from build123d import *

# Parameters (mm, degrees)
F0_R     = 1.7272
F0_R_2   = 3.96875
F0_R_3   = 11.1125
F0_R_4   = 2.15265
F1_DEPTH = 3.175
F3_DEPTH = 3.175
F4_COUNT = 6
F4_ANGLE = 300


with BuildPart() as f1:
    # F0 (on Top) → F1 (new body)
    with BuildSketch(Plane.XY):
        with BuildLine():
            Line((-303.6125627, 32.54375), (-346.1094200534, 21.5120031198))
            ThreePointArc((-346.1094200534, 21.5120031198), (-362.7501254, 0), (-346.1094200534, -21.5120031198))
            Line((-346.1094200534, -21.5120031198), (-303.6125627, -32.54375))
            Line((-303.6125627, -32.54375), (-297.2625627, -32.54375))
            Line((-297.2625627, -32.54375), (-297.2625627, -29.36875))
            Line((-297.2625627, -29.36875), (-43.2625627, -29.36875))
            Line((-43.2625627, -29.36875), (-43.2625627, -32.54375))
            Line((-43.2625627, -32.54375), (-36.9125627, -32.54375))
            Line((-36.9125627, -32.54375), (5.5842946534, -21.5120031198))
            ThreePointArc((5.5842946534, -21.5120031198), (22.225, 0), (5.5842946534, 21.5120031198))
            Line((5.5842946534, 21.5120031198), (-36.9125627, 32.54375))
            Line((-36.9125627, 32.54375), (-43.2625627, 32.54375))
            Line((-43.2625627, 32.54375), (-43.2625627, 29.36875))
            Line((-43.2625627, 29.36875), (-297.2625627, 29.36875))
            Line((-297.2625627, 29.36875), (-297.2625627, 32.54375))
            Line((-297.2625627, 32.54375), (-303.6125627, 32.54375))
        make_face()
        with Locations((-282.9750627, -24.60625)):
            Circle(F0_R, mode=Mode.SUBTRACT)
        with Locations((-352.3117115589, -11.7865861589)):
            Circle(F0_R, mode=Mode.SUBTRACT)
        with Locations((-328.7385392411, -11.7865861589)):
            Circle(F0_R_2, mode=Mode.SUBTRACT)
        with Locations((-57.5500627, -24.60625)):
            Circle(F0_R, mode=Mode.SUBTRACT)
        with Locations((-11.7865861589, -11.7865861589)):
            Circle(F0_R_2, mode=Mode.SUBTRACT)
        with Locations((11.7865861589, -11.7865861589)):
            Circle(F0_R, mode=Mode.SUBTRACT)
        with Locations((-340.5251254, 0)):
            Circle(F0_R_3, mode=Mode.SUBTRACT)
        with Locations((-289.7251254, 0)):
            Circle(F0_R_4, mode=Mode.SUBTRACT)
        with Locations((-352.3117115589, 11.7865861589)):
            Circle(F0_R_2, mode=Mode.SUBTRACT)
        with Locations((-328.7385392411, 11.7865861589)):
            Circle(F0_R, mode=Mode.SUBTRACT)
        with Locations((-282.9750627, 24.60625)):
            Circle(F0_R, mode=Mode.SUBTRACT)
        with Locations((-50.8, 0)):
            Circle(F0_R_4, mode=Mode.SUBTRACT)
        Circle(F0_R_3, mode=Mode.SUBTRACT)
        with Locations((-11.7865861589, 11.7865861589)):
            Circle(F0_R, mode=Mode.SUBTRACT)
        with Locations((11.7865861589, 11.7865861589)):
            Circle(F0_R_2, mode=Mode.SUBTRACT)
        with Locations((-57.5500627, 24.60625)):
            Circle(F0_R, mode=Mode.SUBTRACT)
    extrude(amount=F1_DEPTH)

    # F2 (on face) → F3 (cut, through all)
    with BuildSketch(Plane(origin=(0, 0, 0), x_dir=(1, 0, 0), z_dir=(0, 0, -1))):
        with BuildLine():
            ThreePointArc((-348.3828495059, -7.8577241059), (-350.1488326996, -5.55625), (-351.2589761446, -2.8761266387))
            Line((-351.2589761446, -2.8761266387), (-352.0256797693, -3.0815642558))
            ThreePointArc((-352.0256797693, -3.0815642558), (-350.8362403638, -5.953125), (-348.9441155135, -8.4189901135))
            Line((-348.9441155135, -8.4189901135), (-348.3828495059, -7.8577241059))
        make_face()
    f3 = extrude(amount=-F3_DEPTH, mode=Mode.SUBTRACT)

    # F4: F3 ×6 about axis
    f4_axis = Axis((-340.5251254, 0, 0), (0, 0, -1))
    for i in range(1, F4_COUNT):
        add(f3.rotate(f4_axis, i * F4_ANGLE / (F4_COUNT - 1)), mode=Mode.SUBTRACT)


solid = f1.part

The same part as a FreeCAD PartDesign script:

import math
import FreeCAD as App
import Part
import Sketcher

V = App.Vector
Q = App.Units.Quantity

doc = App.newDocument("Part")
body = doc.addObject("PartDesign::Body", "Body")

# Sketch on XY plane
sketch1 = body.newObject("Sketcher::SketchObject", "Sketch")
sketch1.AttachmentSupport = (doc.getObject("XY_Plane"), [""])
sketch1.MapMode = "FlatFace"
sketch1.addGeometry(Part.LineSegment(V(-303.612563, 32.54375, 0), V(-346.10942, 21.512003, 0)), False)
sketch1.addGeometry(Part.ArcOfCircle(Part.Circle(V(-340.525125, 0, 0), V(0, 0, 1), 22.225), math.radians(104.552195), math.radians(255.447805)), False)
sketch1.addGeometry(Part.LineSegment(V(-346.10942, -21.512003, 0), V(-303.612563, -32.54375, 0)), False)
sketch1.addGeometry(Part.LineSegment(V(-303.612563, -32.54375, 0), V(-297.262563, -32.54375, 0)), False)
sketch1.addGeometry(Part.LineSegment(V(-297.262563, -32.54375, 0), V(-297.262563, -29.36875, 0)), False)
sketch1.addGeometry(Part.LineSegment(V(-297.262563, -29.36875, 0), V(-43.262563, -29.36875, 0)), False)
sketch1.addGeometry(Part.LineSegment(V(-43.262563, -29.36875, 0), V(-43.262563, -32.54375, 0)), False)
sketch1.addGeometry(Part.LineSegment(V(-43.262563, -32.54375, 0), V(-36.912563, -32.54375, 0)), False)
sketch1.addGeometry(Part.LineSegment(V(-36.912563, -32.54375, 0), V(5.584295, -21.512003, 0)), False)
sketch1.addGeometry(Part.ArcOfCircle(Part.Circle(V(0, 0, 0), V(0, 0, 1), 22.225), math.radians(-75.447805), math.radians(75.447805)), False)
sketch1.addGeometry(Part.LineSegment(V(5.584295, 21.512003, 0), V(-36.912563, 32.54375, 0)), False)
sketch1.addGeometry(Part.LineSegment(V(-36.912563, 32.54375, 0), V(-43.262563, 32.54375, 0)), False)
sketch1.addGeometry(Part.LineSegment(V(-43.262563, 32.54375, 0), V(-43.262563, 29.36875, 0)), False)
sketch1.addGeometry(Part.LineSegment(V(-43.262563, 29.36875, 0), V(-297.262563, 29.36875, 0)), False)
sketch1.addGeometry(Part.LineSegment(V(-297.262563, 29.36875, 0), V(-297.262563, 32.54375, 0)), False)
sketch1.addGeometry(Part.LineSegment(V(-297.262563, 32.54375, 0), V(-303.612563, 32.54375, 0)), False)
sketch1.addGeometry(Part.Circle(V(-282.975063, -24.60625, 0), V(0, 0, 1), 1.7272), False)
sketch1.addGeometry(Part.Circle(V(-352.311712, -11.786586, 0), V(0, 0, 1), 1.7272), False)
sketch1.addGeometry(Part.Circle(V(-328.738539, -11.786586, 0), V(0, 0, 1), 3.96875), False)
sketch1.addGeometry(Part.Circle(V(-57.550063, -24.60625, 0), V(0, 0, 1), 1.7272), False)
sketch1.addGeometry(Part.Circle(V(-11.786586, -11.786586, 0), V(0, 0, 1), 3.96875), False)
sketch1.addGeometry(Part.Circle(V(11.786586, -11.786586, 0), V(0, 0, 1), 1.7272), False)
sketch1.addGeometry(Part.Circle(V(-340.525125, 0, 0), V(0, 0, 1), 11.1125), False)
sketch1.addGeometry(Part.Circle(V(-289.725125, 0, 0), V(0, 0, 1), 2.15265), False)
sketch1.addGeometry(Part.Circle(V(-352.311712, 11.786586, 0), V(0, 0, 1), 3.96875), False)
sketch1.addGeometry(Part.Circle(V(-328.738539, 11.786586, 0), V(0, 0, 1), 1.7272), False)
sketch1.addGeometry(Part.Circle(V(-282.975063, 24.60625, 0), V(0, 0, 1), 1.7272), False)
sketch1.addGeometry(Part.Circle(V(-50.8, 0, 0), V(0, 0, 1), 2.15265), False)
sketch1.addGeometry(Part.Circle(V(0, 0, 0), V(0, 0, 1), 11.1125), False)
sketch1.addGeometry(Part.Circle(V(-11.786586, 11.786586, 0), V(0, 0, 1), 1.7272), False)
sketch1.addGeometry(Part.Circle(V(11.786586, 11.786586, 0), V(0, 0, 1), 3.96875), False)
sketch1.addGeometry(Part.Circle(V(-57.550063, 24.60625, 0), V(0, 0, 1), 1.7272), False)
sketch1.addConstraint(Sketcher.Constraint("Tangent", 0, 2, 1, 1))
sketch1.addConstraint(Sketcher.Constraint("Tangent", 1, 2, 2, 1))
sketch1.addConstraint(Sketcher.Constraint("Coincident", 2, 2, 3, 1))
sketch1.addConstraint(Sketcher.Constraint("Coincident", 3, 2, 4, 1))
sketch1.addConstraint(Sketcher.Constraint("Coincident", 4, 2, 5, 1))
sketch1.addConstraint(Sketcher.Constraint("Coincident", 5, 2, 6, 1))
sketch1.addConstraint(Sketcher.Constraint("Coincident", 6, 2, 7, 1))
sketch1.addConstraint(Sketcher.Constraint("Coincident", 7, 2, 8, 1))
sketch1.addConstraint(Sketcher.Constraint("Tangent", 8, 2, 9, 1))
sketch1.addConstraint(Sketcher.Constraint("Tangent", 9, 2, 10, 1))
sketch1.addConstraint(Sketcher.Constraint("Coincident", 10, 2, 11, 1))
sketch1.addConstraint(Sketcher.Constraint("Coincident", 11, 2, 12, 1))
sketch1.addConstraint(Sketcher.Constraint("Coincident", 12, 2, 13, 1))
sketch1.addConstraint(Sketcher.Constraint("Coincident", 13, 2, 14, 1))
sketch1.addConstraint(Sketcher.Constraint("Coincident", 14, 2, 15, 1))
sketch1.addConstraint(Sketcher.Constraint("Coincident", 15, 2, 0, 1))
sketch1.addConstraint(Sketcher.Constraint("Horizontal", 3))
sketch1.addConstraint(Sketcher.Constraint("Vertical", 4))
sketch1.addConstraint(Sketcher.Constraint("Horizontal", 5))
sketch1.addConstraint(Sketcher.Constraint("Vertical", 6))
sketch1.addConstraint(Sketcher.Constraint("Horizontal", 7))
sketch1.addConstraint(Sketcher.Constraint("Horizontal", 11))
sketch1.addConstraint(Sketcher.Constraint("Vertical", 12))
sketch1.addConstraint(Sketcher.Constraint("Horizontal", 13))
sketch1.addConstraint(Sketcher.Constraint("Vertical", 14))
sketch1.addConstraint(Sketcher.Constraint("Horizontal", 15))
sketch1.addConstraint(Sketcher.Constraint("Coincident", 9, 3, -1, 1))
sketch1.addConstraint(Sketcher.Constraint("Coincident", 28, 3, -1, 1))
sketch1.addConstraint(Sketcher.Constraint("Coincident", 22, 3, 1, 3))
sketch1.addConstraint(Sketcher.Constraint("Equal", 1, 9))
sketch1.addConstraint(Sketcher.Constraint("Equal", 16, 17))
sketch1.addConstraint(Sketcher.Constraint("Equal", 17, 19))
sketch1.addConstraint(Sketcher.Constraint("Equal", 18, 20))
sketch1.addConstraint(Sketcher.Constraint("Equal", 19, 21))
sketch1.addConstraint(Sketcher.Constraint("Equal", 20, 24))
sketch1.addConstraint(Sketcher.Constraint("Equal", 21, 25))
sketch1.addConstraint(Sketcher.Constraint("Equal", 25, 26))
sketch1.addConstraint(Sketcher.Constraint("Equal", 23, 27))
sketch1.addConstraint(Sketcher.Constraint("Equal", 22, 28))
sketch1.addConstraint(Sketcher.Constraint("Equal", 26, 29))
sketch1.addConstraint(Sketcher.Constraint("Equal", 24, 30))
sketch1.addConstraint(Sketcher.Constraint("Equal", 29, 31))
sketch1.addConstraint(Sketcher.Constraint("Symmetric", 21, 3, 29, 3, -1, 1))
sketch1.addConstraint(Sketcher.Constraint("Symmetric", 20, 3, 30, 3, -1, 1))
sketch1.addConstraint(Sketcher.Constraint("Symmetric", 20, 3, 21, 3, -2))
sketch1.addConstraint(Sketcher.Constraint("Symmetric", 17, 3, 24, 3, -1))
sketch1.addConstraint(Sketcher.Constraint("Symmetric", 18, 3, 25, 3, -1))
sketch1.addConstraint(Sketcher.Constraint("Symmetric", 16, 3, 26, 3, -1))
sketch1.addConstraint(Sketcher.Constraint("Symmetric", 19, 3, 31, 3, -1))
sketch1.addConstraint(Sketcher.Constraint("Symmetric", 0, 2, 1, 2, -1))
sketch1.addConstraint(Sketcher.Constraint("Symmetric", 7, 2, 10, 2, -1))
sketch1.addConstraint(Sketcher.Constraint("Symmetric", 5, 2, 12, 2, -1))
sketch1.addConstraint(Sketcher.Constraint("Symmetric", 3, 2, 14, 2, -1))
sketch1.addConstraint(Sketcher.Constraint("PointOnObject", 23, 3, -1))
sketch1.addConstraint(Sketcher.Constraint("PointOnObject", 27, 3, -1))
sketch1.addConstraint(Sketcher.Constraint("Parallel", 0, 8))
sketch1.addConstraint(Sketcher.Constraint("Horizontal", 17, 3, 18, 3))
sketch1.addConstraint(Sketcher.Constraint("Horizontal", 16, 3, 19, 3))
sketch1.addConstraint(Sketcher.Constraint("Horizontal", 18, 3, 20, 3))
sketch1.addConstraint(Sketcher.Constraint("Horizontal", 3, 2, 6, 2))
sketch1.addConstraint(Sketcher.Constraint("Equal", 3, 7))
sketch1.addConstraint(Sketcher.Constraint("DistanceX", 5, 1, 5, 2, Q("10 in")))
sketch1.addConstraint(Sketcher.Constraint("Diameter", 16, Q("0.136 in")))
sketch1.addConstraint(Sketcher.Constraint("Diameter", 18, Q("0.3125 in")))
sketch1.addConstraint(Sketcher.Constraint("Diameter", 22, Q("0.875 in")))
sketch1.addConstraint(Sketcher.Constraint("DistanceX", 27, 3, -1, 1, Q("2 in")))
sketch1.addConstraint(Sketcher.Constraint("Radius", 1, Q("0.875 in")))
sketch1.addConstraint(Sketcher.Constraint("DistanceX", 1, 3, 23, 3, Q("2 in")))
sketch1.addConstraint(Sketcher.Constraint("Diameter", 23, Q("0.1695 in")))
sketch1.addConstraint(Sketcher.Constraint("DistanceX", 3, 1, 3, 2, Q("0.25 in")))
sketch1.addConstraint(Sketcher.Constraint("DistanceY", 4, 1, 4, 2, Q("0.125 in")))
sketch1.addConstraint(Sketcher.Constraint("DistanceY", 16, 3, -1, 1, Q("0.96875 in")))
sketch1.addConstraint(Sketcher.Constraint("DistanceY", 2, 2, -1, 1, Q("1.28125 in")))
sketch1.addConstraint(Sketcher.Constraint("DistanceX", 16, 3, 19, 3, Q("8.875 in")))
sketch1.addConstraint(Sketcher.Constraint("DistanceX", 2, 2, 16, 3, Q("0.8125 in")))
sketch1.addConstraint(Sketcher.Constraint("Distance", 0, 43.905379))
sketch1.addConstraint(Sketcher.Constraint("DistanceX", 17, 3, -1, 1, 352.311712))
sketch1.addConstraint(Sketcher.Constraint("DistanceX", 18, 3, -1, 1, 328.738539))
sketch1.addConstraint(Sketcher.Constraint("DistanceX", 1, 3, 20, 3, 328.738539))
sketch1.addConstraint(Sketcher.Constraint("DistanceY", 17, 3, 0, 2, 33.298589))
pad1 = body.newObject("PartDesign::Pad", "Pad")
pad1.Profile = sketch1
pad1.Length = Q("0.125 in")

# Sketch on XY plane
sketch2 = body.newObject("Sketcher::SketchObject", "Sketch001")
sketch2.AttachmentSupport = (doc.getObject("XY_Plane"), [""])
sketch2.MapMode = "FlatFace"
sketch2.addGeometry(Part.ArcOfCircle(Part.Circle(V(-340.525125, 0, 0), V(0, 0, 1), 11.1125), math.radians(135), math.radians(165)), False)
sketch2.addGeometry(Part.LineSegment(V(-351.258976, 2.876127, 0), V(-352.02568, 3.081564, 0)), False)
sketch2.addGeometry(Part.ArcOfCircle(Part.Circle(V(-340.525125, 0, 0), V(0, 0, 1), 11.90625), math.radians(135), math.radians(165)), False)
sketch2.addGeometry(Part.LineSegment(V(-348.944116, 8.41899, 0), V(-348.38285, 7.857724, 0)), False)
sketch2.addConstraint(Sketcher.Constraint("Coincident", 0, 2, 1, 1))
sketch2.addConstraint(Sketcher.Constraint("Coincident", 1, 2, 2, 2))
sketch2.addConstraint(Sketcher.Constraint("Coincident", 2, 1, 3, 1))
sketch2.addConstraint(Sketcher.Constraint("Coincident", 3, 2, 0, 1))
sketch2.addConstraint(Sketcher.Constraint("Coincident", 2, 3, 0, 3))
sketch2.addConstraint(Sketcher.Constraint("PointOnObject", 0, 3, -1))
sketch2.addConstraint(Sketcher.Constraint("Angle", 1, Q("165 deg")))
sketch2.addConstraint(Sketcher.Constraint("Angle", 3, Q("-45 deg")))
sketch2.addConstraint(Sketcher.Constraint("Radius", 0, Q("0.4375 in")))
sketch2.addConstraint(Sketcher.Constraint("Radius", 2, Q("0.46875 in")))
sketch2.addConstraint(Sketcher.Constraint("DistanceX", 1, 2, -1, 1, 352.02568))
sketch2.addConstraint(Sketcher.Constraint("DistanceY", -1, 1, 2, 1, 8.41899))
sketch2.addConstraint(Sketcher.Constraint("DistanceX", 3, 2, -1, 1, 348.38285))
pocket1 = body.newObject("PartDesign::Pocket", "Pocket")
pocket1.Profile = sketch2
pocket1.Type = "ThroughAll"
pocket1.Reversed = True
doc.recompute()

datumline = body.newObject("PartDesign::Line", "DatumLine")
datumline.Placement = App.Placement(V(-340.525125, 0, 0), App.Rotation(V(0, 0, 1), V(0, 0, -1)))
polarpattern = body.newObject("PartDesign::PolarPattern", "PolarPattern")
polarpattern.Originals = [pocket1]
polarpattern.Axis = (datumline, [""])
polarpattern.Angle = 360
polarpattern.Occurrences = 6
body.Tip = polarpattern

doc.recompute()
